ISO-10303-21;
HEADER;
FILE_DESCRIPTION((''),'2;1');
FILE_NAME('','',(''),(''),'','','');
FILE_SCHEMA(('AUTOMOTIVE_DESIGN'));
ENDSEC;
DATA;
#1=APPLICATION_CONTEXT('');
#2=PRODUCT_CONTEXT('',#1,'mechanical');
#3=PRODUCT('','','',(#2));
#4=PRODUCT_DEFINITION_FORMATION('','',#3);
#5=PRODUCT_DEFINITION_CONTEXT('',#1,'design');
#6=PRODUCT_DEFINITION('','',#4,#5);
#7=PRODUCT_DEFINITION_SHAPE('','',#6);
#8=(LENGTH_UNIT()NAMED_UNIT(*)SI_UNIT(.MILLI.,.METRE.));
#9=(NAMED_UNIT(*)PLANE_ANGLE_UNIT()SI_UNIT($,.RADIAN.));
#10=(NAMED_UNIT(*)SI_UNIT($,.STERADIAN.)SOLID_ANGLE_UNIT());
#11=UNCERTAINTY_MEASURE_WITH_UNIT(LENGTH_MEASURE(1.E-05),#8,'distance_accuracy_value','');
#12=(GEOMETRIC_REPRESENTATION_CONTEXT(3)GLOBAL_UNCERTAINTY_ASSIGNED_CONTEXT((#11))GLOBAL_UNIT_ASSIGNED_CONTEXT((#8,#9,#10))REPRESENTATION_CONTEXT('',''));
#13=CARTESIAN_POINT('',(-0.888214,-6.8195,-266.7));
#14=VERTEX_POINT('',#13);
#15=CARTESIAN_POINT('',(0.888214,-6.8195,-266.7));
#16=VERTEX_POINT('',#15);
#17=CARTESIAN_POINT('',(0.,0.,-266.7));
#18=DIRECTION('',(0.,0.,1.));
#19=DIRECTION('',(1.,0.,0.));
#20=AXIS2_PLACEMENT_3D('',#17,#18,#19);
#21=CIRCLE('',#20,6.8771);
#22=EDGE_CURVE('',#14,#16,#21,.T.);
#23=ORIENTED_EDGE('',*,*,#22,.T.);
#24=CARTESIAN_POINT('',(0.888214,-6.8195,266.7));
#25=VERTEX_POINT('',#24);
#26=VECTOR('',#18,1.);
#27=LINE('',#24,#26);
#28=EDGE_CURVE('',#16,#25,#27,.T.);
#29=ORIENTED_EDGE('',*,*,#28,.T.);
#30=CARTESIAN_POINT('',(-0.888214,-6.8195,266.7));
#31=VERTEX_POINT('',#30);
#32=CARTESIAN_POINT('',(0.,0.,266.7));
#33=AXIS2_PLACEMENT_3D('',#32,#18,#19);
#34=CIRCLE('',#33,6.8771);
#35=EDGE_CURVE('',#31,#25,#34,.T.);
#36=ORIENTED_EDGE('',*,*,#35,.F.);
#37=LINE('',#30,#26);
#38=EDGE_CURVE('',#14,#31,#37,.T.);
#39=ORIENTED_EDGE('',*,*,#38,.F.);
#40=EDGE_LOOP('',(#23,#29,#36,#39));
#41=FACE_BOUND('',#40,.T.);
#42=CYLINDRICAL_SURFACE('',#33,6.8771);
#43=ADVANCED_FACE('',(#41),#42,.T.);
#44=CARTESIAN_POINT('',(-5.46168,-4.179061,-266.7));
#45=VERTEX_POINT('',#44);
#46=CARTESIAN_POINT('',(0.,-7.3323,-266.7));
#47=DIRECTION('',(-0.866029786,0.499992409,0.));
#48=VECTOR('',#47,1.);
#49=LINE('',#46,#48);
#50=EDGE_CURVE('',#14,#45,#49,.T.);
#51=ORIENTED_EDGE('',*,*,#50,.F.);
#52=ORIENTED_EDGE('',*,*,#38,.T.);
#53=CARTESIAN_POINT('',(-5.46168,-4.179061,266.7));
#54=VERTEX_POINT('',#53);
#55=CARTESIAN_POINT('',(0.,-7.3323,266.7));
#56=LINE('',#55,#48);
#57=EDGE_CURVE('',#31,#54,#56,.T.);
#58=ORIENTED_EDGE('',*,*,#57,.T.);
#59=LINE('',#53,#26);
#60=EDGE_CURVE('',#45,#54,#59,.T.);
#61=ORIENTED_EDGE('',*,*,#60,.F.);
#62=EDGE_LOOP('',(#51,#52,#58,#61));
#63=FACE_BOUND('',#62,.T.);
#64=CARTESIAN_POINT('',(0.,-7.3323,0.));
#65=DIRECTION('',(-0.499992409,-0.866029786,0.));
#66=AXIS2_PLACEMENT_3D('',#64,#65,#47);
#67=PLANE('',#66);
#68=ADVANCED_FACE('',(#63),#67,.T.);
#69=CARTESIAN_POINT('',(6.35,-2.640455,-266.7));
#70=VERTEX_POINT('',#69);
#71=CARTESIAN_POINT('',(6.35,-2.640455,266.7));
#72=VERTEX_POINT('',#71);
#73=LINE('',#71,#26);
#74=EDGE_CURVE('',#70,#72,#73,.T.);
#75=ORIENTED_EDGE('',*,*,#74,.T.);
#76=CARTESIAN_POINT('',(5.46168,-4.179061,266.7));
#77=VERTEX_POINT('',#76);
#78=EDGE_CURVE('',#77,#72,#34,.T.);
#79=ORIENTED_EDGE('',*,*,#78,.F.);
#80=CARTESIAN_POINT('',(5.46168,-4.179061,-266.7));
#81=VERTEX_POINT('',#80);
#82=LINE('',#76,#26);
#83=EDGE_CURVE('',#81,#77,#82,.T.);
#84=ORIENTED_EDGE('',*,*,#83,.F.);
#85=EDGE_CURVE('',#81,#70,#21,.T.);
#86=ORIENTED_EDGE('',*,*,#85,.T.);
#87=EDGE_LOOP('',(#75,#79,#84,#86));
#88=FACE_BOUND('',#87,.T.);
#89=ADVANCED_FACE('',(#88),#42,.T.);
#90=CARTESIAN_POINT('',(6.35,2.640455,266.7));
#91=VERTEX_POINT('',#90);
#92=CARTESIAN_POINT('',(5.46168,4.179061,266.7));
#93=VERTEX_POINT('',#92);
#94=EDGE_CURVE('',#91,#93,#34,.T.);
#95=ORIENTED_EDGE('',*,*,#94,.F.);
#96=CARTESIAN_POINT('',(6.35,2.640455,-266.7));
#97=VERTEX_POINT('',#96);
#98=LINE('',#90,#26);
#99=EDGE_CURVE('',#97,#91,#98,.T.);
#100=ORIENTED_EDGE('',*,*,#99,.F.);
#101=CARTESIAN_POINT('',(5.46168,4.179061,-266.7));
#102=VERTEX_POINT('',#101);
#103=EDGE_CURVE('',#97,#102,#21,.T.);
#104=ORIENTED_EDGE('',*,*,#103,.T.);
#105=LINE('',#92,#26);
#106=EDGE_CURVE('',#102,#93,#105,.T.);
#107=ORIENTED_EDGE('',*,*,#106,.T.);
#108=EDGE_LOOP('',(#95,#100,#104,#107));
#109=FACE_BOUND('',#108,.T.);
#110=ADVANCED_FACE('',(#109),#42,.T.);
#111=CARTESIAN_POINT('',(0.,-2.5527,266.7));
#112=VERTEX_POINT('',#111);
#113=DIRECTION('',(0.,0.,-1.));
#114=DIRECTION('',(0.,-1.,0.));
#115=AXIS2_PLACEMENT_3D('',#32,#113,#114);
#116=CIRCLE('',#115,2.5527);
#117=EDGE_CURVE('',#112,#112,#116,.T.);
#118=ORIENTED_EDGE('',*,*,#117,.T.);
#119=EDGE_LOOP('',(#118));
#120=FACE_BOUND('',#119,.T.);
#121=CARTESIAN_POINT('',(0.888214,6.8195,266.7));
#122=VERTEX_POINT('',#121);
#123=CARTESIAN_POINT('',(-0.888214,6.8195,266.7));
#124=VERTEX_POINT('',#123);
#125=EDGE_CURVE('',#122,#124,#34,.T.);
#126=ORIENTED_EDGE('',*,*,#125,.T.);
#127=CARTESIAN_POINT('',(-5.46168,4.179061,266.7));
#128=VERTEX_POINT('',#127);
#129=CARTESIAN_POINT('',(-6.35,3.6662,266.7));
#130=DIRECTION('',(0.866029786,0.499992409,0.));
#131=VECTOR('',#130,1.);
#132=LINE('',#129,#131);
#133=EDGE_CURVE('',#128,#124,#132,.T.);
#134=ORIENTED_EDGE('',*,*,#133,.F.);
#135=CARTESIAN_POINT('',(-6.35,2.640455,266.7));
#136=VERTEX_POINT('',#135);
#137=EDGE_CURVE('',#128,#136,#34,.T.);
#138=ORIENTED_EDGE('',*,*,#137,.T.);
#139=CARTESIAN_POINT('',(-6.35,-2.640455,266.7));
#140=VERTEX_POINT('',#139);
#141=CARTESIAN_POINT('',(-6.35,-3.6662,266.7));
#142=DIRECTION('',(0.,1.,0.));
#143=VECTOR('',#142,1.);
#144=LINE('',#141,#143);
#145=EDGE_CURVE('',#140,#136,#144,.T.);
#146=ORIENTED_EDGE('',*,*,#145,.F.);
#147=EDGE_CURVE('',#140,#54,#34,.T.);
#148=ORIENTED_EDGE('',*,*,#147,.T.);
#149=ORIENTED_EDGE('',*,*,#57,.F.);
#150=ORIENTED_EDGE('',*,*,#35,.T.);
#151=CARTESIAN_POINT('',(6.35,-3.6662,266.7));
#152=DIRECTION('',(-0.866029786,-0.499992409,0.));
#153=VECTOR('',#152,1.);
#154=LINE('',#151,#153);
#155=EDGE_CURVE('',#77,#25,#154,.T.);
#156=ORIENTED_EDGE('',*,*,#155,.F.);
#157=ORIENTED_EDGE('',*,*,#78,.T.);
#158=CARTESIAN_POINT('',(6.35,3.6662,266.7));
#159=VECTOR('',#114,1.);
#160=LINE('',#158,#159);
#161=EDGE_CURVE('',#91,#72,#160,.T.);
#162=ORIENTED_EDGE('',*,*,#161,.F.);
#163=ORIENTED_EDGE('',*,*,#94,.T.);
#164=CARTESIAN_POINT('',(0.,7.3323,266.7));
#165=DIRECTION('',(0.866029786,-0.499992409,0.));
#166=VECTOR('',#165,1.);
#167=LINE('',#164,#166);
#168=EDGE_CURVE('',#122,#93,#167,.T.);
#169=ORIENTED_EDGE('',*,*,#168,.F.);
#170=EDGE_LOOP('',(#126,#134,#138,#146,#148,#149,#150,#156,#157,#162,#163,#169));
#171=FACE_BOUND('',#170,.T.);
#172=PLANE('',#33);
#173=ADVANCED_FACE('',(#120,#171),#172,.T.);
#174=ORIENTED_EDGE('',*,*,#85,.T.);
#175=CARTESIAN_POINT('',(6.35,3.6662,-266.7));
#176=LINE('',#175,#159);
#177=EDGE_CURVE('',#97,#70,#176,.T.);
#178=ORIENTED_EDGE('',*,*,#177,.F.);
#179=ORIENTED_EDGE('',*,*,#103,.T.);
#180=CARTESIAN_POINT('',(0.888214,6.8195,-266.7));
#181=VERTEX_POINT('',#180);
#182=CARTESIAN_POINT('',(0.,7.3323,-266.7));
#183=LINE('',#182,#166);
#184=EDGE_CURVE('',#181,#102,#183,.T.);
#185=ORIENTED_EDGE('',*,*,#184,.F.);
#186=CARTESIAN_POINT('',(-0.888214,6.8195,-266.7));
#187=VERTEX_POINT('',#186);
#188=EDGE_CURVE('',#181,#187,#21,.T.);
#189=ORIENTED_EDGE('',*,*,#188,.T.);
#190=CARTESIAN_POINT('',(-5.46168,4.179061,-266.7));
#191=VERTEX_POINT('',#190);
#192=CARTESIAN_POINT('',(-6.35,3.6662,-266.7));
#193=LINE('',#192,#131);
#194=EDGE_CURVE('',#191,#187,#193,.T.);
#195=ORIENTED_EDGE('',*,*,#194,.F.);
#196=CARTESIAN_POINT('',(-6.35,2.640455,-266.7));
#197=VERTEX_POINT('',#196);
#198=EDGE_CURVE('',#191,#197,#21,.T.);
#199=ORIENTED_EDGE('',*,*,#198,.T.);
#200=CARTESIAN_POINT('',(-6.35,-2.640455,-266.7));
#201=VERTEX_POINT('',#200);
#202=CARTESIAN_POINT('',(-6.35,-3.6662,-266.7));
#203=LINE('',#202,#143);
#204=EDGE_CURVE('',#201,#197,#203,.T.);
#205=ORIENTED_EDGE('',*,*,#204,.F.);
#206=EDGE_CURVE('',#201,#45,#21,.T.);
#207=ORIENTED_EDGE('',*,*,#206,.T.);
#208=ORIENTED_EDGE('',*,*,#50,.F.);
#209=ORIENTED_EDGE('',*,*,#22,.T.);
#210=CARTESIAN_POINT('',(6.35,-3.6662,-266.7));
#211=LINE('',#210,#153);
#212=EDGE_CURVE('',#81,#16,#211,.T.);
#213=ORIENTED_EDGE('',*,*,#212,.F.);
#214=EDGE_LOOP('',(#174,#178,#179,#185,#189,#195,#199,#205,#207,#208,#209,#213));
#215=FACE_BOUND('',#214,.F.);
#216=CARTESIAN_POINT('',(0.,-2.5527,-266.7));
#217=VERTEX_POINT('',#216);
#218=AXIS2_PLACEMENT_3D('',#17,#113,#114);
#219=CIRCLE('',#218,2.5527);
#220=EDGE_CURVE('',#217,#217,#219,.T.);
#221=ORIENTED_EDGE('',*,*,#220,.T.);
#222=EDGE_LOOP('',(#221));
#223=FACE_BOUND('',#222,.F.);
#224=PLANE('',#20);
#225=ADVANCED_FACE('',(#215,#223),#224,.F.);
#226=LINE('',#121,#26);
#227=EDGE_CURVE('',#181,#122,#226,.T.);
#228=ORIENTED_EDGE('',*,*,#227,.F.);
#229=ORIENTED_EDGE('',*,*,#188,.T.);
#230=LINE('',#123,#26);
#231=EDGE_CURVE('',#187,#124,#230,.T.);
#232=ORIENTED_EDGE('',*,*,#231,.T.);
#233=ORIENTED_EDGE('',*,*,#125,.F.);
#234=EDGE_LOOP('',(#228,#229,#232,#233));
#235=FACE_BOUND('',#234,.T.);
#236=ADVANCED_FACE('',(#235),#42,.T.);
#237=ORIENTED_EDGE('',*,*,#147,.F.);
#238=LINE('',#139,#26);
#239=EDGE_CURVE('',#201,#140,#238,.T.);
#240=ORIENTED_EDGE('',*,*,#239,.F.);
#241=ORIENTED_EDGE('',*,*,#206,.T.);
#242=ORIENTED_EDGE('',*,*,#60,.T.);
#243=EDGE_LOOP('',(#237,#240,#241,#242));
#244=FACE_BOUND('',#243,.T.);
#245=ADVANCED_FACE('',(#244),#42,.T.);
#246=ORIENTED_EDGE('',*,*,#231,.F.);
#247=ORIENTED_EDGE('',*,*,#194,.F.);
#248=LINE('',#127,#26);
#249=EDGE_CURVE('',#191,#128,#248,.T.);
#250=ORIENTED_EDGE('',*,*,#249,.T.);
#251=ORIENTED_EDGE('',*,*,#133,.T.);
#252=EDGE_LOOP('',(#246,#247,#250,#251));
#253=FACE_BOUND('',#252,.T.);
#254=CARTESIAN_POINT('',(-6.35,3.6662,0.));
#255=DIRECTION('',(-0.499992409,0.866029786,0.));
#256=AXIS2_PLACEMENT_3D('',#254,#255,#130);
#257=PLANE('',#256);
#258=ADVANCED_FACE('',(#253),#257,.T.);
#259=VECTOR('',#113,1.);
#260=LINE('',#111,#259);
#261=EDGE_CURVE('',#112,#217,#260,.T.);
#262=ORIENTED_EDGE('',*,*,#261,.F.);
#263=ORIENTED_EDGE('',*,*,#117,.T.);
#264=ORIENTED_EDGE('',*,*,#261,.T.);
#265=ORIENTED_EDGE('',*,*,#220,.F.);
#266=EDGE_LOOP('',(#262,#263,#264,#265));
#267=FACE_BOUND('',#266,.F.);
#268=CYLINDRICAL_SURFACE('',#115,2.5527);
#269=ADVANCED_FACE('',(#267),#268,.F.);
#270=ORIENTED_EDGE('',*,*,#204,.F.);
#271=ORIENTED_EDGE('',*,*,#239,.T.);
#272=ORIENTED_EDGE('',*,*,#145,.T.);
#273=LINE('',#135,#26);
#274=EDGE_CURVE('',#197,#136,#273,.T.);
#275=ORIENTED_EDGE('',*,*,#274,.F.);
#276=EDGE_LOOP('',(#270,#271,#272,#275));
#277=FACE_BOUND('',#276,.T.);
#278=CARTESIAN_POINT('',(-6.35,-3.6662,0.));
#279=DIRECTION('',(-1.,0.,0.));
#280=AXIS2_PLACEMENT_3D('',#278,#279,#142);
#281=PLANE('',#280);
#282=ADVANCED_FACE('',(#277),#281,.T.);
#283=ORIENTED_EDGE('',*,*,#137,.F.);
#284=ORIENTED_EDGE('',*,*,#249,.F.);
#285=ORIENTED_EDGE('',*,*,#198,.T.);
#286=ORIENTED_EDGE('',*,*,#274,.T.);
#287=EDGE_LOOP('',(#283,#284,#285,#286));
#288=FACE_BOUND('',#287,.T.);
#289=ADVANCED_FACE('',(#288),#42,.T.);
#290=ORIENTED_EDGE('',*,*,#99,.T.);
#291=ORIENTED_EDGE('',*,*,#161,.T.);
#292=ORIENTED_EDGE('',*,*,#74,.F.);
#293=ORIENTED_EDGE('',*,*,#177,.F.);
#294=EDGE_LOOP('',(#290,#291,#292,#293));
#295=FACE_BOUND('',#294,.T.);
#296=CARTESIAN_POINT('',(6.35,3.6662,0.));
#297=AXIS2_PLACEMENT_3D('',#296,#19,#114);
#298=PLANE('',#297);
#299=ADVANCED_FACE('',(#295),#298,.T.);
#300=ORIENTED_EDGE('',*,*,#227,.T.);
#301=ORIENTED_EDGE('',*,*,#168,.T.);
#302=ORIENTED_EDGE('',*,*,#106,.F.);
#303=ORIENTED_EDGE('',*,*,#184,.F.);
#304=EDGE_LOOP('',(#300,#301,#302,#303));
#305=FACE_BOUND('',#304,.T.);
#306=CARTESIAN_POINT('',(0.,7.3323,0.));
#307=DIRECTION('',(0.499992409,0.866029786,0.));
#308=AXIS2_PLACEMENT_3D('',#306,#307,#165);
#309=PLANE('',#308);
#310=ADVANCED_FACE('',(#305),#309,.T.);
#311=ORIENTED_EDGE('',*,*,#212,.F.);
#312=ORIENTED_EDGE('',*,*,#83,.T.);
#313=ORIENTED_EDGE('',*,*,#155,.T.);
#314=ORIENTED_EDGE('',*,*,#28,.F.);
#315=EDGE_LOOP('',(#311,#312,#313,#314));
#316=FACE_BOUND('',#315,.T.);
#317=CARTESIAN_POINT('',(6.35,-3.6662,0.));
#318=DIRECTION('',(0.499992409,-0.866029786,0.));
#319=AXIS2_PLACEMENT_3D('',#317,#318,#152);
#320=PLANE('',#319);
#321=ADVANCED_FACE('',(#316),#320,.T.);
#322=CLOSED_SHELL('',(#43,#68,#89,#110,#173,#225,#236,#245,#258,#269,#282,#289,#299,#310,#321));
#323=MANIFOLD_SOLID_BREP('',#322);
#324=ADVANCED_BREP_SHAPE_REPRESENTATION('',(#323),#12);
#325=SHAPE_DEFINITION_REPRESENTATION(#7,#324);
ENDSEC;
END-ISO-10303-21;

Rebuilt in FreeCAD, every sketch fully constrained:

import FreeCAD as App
import Part
import Sketcher
from FreeCAD import Vector
Q = App.Units.Quantity

doc = App.newDocument("Part")
body = doc.addObject("PartDesign::Body", "Body")

# Sketch on XY plane
sketch1 = doc.addObject("Sketcher::SketchObject", "Sketch")
body.addObject(sketch1)
sketch1.AttachmentSupport = (doc.XY_Plane, [""])
sketch1.MapMode = "FlatFace"
sketch1.addGeometry([
    Part.LineSegment(Vector(-6.35, 3.6662, 0), Vector(-6.35, -3.6662, 0)),  # 0
    Part.LineSegment(Vector(-6.35, -3.6662, 0), Vector(0, -7.3323, 0)),  # 1
    Part.LineSegment(Vector(0, -7.3323, 0), Vector(6.35, -3.6662, 0)),  # 2
    Part.LineSegment(Vector(6.35, -3.6662, 0), Vector(6.35, 3.6662, 0)),  # 3
    Part.LineSegment(Vector(6.35, 3.6662, 0), Vector(0, 7.3323, 0)),  # 4
    Part.LineSegment(Vector(0, 7.3323, 0), Vector(-6.35, 3.6662, 0)),  # 5
], False)
sketch1.addConstraint([
    Sketcher.Constraint("Coincident", 0, 2, 1, 1),
    Sketcher.Constraint("Coincident", 1, 2, 2, 1),
    Sketcher.Constraint("Coincident", 2, 2, 3, 1),
    Sketcher.Constraint("Coincident", 3, 2, 4, 1),
    Sketcher.Constraint("Coincident", 4, 2, 5, 1),
    Sketcher.Constraint("Coincident", 5, 2, 0, 1),
    Sketcher.Constraint("Vertical", 0),
    Sketcher.Constraint("Vertical", 3),
    Sketcher.Constraint("Symmetric", 0, 2, 3, 2, -1, 1),
    Sketcher.Constraint("Symmetric", 1, 2, 4, 2, -1, 1),
    Sketcher.Constraint("PointOnObject", 1, 2, -2),
    Sketcher.Constraint("Parallel", 2, 5),
    Sketcher.Constraint("Horizontal", 0, 2, 2, 2),
    Sketcher.Constraint("DistanceX", 0, 2, 2, 2, Q("0.5 in")),
    Sketcher.Constraint("Angle", 1, Q("-29.9995 deg")),
    Sketcher.Constraint("DistanceY", 1, 2, 3, 2, Q("0.433 in")),
])
pad1 = doc.addObject("PartDesign::Pad", "Pad")
body.addObject(pad1)
pad1.Profile = sketch1
pad1.Length = Q("21 in")
pad1.Midplane = True

# Sketch on XY plane
sketch2 = doc.addObject("Sketcher::SketchObject", "Sketch001")
body.addObject(sketch2)
sketch2.AttachmentSupport = (doc.XY_Plane, [""])
sketch2.MapMode = "FlatFace"
sketch2.AttachmentOffset = App.Placement(Vector(0, 0, 10.5 * 25.4), App.Rotation())
sketch2.addGeometry(Part.Circle(Vector(0, 0, 0), Vector(0, 0, 1), 2.5527), False)
sketch2.addConstraint([
    Sketcher.Constraint("Coincident", 0, 3, -1, 1),
    Sketcher.Constraint("Diameter", 0, Q("0.201 in")),
])
doc.recompute()
hole = doc.addObject("PartDesign::Hole", "Hole")
body.addObject(hole)
hole.Profile = sketch2
hole.ThreadType = "None"
hole.Diameter = Q("0.201 in")
hole.DepthType = "ThroughAll"

# Sketch on XY plane
sketch3 = doc.addObject("Sketcher::SketchObject", "Sketch002")
body.addObject(sketch3)
sketch3.AttachmentSupport = (doc.XY_Plane, [""])
sketch3.MapMode = "FlatFace"
sketch3.AttachmentOffset = App.Placement(Vector(0, 0, 10.5 * 25.4), App.Rotation())
sketch3.addGeometry([
    Part.Circle(Vector(0, 0, 0), Vector(0, 0, 1), 8.89),
    Part.Circle(Vector(0, 0, 0), Vector(0, 0, 1), 6.8771),
], False)
sketch3.addConstraint([
    Sketcher.Constraint("Coincident", 0, 3, -1, 1),
    Sketcher.Constraint("Coincident", 1, 3, -1, 1),
    Sketcher.Constraint("Diameter", 0, Q("0.7 in")),
    Sketcher.Constraint("Diameter", 1, Q("0.5415 in")),
])
pocket1 = doc.addObject("PartDesign::Pocket", "Pocket")
body.addObject(pocket1)
pocket1.Profile = sketch3
pocket1.Type = "ThroughAll"

doc.recompute()
